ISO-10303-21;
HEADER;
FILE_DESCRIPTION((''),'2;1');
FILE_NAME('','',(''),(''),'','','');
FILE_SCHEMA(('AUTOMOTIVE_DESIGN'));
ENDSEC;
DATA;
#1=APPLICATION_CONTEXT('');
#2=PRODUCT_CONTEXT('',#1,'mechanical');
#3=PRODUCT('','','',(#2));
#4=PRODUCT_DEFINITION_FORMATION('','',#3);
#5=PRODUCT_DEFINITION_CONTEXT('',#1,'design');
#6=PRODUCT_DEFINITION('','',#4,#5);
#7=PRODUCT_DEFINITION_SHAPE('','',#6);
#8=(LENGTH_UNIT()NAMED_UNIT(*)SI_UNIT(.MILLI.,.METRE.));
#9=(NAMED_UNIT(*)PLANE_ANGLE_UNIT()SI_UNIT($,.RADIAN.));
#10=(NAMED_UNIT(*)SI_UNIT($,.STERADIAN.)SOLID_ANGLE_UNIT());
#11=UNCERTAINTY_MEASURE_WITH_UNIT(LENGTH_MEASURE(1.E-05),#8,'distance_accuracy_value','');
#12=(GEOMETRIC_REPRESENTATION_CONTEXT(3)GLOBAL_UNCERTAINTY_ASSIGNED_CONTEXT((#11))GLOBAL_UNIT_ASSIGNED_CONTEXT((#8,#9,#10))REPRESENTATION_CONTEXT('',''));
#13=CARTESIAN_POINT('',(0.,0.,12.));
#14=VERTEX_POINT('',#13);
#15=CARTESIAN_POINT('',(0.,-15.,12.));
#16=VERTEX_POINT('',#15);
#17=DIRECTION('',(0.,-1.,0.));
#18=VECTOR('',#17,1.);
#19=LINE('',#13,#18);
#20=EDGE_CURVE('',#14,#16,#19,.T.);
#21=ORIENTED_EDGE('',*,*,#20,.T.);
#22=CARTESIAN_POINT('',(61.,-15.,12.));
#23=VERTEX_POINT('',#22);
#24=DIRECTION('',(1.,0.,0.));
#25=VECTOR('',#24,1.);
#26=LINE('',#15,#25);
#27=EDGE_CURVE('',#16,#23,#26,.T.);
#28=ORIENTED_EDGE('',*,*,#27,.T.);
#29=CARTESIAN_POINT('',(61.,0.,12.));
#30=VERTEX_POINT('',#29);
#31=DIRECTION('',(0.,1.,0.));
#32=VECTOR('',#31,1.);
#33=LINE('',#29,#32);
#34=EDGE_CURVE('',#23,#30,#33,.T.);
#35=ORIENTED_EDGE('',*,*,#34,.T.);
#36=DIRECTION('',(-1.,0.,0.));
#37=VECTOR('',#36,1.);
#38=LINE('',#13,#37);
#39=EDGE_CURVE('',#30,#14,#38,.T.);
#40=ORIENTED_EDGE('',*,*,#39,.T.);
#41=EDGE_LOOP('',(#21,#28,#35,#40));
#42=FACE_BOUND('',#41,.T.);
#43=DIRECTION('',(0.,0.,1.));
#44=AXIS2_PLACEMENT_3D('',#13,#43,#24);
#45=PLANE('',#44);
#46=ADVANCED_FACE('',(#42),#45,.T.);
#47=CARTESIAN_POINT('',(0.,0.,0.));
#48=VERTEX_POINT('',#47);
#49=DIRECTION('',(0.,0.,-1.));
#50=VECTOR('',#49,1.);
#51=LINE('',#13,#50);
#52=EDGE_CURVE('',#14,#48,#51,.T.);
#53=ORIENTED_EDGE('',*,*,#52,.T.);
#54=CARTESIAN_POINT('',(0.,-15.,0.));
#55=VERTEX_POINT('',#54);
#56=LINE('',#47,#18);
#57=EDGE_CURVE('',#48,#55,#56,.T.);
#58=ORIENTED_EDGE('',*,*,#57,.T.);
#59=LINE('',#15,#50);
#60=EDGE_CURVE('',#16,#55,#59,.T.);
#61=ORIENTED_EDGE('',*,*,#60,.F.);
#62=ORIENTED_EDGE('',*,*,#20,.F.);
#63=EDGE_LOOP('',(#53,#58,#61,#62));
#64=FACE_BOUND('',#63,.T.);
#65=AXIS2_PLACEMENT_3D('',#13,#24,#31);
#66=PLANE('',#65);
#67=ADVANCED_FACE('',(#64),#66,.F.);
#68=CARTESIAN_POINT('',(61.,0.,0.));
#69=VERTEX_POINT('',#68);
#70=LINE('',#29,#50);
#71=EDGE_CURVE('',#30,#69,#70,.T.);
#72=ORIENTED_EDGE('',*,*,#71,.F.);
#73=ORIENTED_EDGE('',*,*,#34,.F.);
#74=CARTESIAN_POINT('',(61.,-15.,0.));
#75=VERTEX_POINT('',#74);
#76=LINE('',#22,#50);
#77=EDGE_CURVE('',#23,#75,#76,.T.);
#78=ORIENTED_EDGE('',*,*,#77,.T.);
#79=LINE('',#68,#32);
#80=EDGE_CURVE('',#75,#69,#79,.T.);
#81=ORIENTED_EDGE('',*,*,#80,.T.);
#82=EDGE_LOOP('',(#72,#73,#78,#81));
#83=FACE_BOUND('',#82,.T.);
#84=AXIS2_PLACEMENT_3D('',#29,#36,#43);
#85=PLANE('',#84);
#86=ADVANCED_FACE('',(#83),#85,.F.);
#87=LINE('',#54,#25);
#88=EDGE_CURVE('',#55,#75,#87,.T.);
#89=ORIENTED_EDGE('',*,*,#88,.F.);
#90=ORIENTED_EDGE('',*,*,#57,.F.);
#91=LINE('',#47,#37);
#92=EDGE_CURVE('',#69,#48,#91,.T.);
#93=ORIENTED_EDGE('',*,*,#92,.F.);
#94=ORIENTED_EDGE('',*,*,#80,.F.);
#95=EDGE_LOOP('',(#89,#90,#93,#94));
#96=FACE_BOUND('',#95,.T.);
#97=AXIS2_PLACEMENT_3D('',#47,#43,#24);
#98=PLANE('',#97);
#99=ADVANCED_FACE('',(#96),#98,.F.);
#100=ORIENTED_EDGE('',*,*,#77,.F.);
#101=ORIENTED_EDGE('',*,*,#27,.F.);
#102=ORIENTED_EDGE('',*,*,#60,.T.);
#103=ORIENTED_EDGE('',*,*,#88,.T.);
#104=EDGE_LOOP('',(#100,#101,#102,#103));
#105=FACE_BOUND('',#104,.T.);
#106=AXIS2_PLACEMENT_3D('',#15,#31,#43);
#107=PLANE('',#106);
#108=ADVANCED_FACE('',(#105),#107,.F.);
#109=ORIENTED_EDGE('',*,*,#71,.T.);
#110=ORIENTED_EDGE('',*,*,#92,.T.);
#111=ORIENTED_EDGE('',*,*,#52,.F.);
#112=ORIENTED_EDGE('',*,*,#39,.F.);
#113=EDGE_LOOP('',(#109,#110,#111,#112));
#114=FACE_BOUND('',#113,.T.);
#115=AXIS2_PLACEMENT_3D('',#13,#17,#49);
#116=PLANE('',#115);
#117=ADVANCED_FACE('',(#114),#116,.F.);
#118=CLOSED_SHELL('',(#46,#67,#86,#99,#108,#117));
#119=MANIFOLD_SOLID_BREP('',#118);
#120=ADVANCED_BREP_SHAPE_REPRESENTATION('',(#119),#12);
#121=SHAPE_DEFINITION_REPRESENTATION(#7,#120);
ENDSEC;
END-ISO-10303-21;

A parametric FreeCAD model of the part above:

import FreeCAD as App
import Part
import Sketcher


def add_polygon(sketch, points):
    """Adds a closed chain of lines whose ends are joined by coincident constraints."""
    first, n = sketch.GeometryCount, len(points)
    for a, b in zip(points, points[1:] + points[:1]):
        sketch.addGeometry(Part.LineSegment(App.Vector(*a, 0), App.Vector(*b, 0)), False)
    for i in range(n):
        sketch.addConstraint(Sketcher.Constraint("Coincident", first + i, 2, first + (i + 1) % n, 1))

doc = App.newDocument("Part")
body = doc.addObject("PartDesign::Body", "Body")

sketch1 = doc.addObject("Sketcher::SketchObject", "Sketch")
body.addObject(sketch1)
sketch1.AttachmentSupport = (doc.XY_Plane, [""])
sketch1.MapMode = "FlatFace"
add_polygon(sketch1, [(0, 0), (0, -15), (61, -15), (61, 0)])
sketch1.addConstraint(Sketcher.Constraint("Vertical", 0))
sketch1.addConstraint(Sketcher.Constraint("Horizontal", 1))
sketch1.addConstraint(Sketcher.Constraint("Vertical", 2))
sketch1.addConstraint(Sketcher.Constraint("Horizontal", 3))
sketch1.addConstraint(Sketcher.Constraint("Coincident", 3, 2, -1, 1))
sketch1.addConstraint(Sketcher.Constraint("DistanceX", 1, 1, 1, 2, 61.0))
sketch1.addConstraint(Sketcher.Constraint("DistanceY", 0, 2, 0, 1, 15.0))
pad1 = doc.addObject("PartDesign::Pad", "Pad")
body.addObject(pad1)
pad1.Profile = sketch1
pad1.Length = 12

doc.recompute()
